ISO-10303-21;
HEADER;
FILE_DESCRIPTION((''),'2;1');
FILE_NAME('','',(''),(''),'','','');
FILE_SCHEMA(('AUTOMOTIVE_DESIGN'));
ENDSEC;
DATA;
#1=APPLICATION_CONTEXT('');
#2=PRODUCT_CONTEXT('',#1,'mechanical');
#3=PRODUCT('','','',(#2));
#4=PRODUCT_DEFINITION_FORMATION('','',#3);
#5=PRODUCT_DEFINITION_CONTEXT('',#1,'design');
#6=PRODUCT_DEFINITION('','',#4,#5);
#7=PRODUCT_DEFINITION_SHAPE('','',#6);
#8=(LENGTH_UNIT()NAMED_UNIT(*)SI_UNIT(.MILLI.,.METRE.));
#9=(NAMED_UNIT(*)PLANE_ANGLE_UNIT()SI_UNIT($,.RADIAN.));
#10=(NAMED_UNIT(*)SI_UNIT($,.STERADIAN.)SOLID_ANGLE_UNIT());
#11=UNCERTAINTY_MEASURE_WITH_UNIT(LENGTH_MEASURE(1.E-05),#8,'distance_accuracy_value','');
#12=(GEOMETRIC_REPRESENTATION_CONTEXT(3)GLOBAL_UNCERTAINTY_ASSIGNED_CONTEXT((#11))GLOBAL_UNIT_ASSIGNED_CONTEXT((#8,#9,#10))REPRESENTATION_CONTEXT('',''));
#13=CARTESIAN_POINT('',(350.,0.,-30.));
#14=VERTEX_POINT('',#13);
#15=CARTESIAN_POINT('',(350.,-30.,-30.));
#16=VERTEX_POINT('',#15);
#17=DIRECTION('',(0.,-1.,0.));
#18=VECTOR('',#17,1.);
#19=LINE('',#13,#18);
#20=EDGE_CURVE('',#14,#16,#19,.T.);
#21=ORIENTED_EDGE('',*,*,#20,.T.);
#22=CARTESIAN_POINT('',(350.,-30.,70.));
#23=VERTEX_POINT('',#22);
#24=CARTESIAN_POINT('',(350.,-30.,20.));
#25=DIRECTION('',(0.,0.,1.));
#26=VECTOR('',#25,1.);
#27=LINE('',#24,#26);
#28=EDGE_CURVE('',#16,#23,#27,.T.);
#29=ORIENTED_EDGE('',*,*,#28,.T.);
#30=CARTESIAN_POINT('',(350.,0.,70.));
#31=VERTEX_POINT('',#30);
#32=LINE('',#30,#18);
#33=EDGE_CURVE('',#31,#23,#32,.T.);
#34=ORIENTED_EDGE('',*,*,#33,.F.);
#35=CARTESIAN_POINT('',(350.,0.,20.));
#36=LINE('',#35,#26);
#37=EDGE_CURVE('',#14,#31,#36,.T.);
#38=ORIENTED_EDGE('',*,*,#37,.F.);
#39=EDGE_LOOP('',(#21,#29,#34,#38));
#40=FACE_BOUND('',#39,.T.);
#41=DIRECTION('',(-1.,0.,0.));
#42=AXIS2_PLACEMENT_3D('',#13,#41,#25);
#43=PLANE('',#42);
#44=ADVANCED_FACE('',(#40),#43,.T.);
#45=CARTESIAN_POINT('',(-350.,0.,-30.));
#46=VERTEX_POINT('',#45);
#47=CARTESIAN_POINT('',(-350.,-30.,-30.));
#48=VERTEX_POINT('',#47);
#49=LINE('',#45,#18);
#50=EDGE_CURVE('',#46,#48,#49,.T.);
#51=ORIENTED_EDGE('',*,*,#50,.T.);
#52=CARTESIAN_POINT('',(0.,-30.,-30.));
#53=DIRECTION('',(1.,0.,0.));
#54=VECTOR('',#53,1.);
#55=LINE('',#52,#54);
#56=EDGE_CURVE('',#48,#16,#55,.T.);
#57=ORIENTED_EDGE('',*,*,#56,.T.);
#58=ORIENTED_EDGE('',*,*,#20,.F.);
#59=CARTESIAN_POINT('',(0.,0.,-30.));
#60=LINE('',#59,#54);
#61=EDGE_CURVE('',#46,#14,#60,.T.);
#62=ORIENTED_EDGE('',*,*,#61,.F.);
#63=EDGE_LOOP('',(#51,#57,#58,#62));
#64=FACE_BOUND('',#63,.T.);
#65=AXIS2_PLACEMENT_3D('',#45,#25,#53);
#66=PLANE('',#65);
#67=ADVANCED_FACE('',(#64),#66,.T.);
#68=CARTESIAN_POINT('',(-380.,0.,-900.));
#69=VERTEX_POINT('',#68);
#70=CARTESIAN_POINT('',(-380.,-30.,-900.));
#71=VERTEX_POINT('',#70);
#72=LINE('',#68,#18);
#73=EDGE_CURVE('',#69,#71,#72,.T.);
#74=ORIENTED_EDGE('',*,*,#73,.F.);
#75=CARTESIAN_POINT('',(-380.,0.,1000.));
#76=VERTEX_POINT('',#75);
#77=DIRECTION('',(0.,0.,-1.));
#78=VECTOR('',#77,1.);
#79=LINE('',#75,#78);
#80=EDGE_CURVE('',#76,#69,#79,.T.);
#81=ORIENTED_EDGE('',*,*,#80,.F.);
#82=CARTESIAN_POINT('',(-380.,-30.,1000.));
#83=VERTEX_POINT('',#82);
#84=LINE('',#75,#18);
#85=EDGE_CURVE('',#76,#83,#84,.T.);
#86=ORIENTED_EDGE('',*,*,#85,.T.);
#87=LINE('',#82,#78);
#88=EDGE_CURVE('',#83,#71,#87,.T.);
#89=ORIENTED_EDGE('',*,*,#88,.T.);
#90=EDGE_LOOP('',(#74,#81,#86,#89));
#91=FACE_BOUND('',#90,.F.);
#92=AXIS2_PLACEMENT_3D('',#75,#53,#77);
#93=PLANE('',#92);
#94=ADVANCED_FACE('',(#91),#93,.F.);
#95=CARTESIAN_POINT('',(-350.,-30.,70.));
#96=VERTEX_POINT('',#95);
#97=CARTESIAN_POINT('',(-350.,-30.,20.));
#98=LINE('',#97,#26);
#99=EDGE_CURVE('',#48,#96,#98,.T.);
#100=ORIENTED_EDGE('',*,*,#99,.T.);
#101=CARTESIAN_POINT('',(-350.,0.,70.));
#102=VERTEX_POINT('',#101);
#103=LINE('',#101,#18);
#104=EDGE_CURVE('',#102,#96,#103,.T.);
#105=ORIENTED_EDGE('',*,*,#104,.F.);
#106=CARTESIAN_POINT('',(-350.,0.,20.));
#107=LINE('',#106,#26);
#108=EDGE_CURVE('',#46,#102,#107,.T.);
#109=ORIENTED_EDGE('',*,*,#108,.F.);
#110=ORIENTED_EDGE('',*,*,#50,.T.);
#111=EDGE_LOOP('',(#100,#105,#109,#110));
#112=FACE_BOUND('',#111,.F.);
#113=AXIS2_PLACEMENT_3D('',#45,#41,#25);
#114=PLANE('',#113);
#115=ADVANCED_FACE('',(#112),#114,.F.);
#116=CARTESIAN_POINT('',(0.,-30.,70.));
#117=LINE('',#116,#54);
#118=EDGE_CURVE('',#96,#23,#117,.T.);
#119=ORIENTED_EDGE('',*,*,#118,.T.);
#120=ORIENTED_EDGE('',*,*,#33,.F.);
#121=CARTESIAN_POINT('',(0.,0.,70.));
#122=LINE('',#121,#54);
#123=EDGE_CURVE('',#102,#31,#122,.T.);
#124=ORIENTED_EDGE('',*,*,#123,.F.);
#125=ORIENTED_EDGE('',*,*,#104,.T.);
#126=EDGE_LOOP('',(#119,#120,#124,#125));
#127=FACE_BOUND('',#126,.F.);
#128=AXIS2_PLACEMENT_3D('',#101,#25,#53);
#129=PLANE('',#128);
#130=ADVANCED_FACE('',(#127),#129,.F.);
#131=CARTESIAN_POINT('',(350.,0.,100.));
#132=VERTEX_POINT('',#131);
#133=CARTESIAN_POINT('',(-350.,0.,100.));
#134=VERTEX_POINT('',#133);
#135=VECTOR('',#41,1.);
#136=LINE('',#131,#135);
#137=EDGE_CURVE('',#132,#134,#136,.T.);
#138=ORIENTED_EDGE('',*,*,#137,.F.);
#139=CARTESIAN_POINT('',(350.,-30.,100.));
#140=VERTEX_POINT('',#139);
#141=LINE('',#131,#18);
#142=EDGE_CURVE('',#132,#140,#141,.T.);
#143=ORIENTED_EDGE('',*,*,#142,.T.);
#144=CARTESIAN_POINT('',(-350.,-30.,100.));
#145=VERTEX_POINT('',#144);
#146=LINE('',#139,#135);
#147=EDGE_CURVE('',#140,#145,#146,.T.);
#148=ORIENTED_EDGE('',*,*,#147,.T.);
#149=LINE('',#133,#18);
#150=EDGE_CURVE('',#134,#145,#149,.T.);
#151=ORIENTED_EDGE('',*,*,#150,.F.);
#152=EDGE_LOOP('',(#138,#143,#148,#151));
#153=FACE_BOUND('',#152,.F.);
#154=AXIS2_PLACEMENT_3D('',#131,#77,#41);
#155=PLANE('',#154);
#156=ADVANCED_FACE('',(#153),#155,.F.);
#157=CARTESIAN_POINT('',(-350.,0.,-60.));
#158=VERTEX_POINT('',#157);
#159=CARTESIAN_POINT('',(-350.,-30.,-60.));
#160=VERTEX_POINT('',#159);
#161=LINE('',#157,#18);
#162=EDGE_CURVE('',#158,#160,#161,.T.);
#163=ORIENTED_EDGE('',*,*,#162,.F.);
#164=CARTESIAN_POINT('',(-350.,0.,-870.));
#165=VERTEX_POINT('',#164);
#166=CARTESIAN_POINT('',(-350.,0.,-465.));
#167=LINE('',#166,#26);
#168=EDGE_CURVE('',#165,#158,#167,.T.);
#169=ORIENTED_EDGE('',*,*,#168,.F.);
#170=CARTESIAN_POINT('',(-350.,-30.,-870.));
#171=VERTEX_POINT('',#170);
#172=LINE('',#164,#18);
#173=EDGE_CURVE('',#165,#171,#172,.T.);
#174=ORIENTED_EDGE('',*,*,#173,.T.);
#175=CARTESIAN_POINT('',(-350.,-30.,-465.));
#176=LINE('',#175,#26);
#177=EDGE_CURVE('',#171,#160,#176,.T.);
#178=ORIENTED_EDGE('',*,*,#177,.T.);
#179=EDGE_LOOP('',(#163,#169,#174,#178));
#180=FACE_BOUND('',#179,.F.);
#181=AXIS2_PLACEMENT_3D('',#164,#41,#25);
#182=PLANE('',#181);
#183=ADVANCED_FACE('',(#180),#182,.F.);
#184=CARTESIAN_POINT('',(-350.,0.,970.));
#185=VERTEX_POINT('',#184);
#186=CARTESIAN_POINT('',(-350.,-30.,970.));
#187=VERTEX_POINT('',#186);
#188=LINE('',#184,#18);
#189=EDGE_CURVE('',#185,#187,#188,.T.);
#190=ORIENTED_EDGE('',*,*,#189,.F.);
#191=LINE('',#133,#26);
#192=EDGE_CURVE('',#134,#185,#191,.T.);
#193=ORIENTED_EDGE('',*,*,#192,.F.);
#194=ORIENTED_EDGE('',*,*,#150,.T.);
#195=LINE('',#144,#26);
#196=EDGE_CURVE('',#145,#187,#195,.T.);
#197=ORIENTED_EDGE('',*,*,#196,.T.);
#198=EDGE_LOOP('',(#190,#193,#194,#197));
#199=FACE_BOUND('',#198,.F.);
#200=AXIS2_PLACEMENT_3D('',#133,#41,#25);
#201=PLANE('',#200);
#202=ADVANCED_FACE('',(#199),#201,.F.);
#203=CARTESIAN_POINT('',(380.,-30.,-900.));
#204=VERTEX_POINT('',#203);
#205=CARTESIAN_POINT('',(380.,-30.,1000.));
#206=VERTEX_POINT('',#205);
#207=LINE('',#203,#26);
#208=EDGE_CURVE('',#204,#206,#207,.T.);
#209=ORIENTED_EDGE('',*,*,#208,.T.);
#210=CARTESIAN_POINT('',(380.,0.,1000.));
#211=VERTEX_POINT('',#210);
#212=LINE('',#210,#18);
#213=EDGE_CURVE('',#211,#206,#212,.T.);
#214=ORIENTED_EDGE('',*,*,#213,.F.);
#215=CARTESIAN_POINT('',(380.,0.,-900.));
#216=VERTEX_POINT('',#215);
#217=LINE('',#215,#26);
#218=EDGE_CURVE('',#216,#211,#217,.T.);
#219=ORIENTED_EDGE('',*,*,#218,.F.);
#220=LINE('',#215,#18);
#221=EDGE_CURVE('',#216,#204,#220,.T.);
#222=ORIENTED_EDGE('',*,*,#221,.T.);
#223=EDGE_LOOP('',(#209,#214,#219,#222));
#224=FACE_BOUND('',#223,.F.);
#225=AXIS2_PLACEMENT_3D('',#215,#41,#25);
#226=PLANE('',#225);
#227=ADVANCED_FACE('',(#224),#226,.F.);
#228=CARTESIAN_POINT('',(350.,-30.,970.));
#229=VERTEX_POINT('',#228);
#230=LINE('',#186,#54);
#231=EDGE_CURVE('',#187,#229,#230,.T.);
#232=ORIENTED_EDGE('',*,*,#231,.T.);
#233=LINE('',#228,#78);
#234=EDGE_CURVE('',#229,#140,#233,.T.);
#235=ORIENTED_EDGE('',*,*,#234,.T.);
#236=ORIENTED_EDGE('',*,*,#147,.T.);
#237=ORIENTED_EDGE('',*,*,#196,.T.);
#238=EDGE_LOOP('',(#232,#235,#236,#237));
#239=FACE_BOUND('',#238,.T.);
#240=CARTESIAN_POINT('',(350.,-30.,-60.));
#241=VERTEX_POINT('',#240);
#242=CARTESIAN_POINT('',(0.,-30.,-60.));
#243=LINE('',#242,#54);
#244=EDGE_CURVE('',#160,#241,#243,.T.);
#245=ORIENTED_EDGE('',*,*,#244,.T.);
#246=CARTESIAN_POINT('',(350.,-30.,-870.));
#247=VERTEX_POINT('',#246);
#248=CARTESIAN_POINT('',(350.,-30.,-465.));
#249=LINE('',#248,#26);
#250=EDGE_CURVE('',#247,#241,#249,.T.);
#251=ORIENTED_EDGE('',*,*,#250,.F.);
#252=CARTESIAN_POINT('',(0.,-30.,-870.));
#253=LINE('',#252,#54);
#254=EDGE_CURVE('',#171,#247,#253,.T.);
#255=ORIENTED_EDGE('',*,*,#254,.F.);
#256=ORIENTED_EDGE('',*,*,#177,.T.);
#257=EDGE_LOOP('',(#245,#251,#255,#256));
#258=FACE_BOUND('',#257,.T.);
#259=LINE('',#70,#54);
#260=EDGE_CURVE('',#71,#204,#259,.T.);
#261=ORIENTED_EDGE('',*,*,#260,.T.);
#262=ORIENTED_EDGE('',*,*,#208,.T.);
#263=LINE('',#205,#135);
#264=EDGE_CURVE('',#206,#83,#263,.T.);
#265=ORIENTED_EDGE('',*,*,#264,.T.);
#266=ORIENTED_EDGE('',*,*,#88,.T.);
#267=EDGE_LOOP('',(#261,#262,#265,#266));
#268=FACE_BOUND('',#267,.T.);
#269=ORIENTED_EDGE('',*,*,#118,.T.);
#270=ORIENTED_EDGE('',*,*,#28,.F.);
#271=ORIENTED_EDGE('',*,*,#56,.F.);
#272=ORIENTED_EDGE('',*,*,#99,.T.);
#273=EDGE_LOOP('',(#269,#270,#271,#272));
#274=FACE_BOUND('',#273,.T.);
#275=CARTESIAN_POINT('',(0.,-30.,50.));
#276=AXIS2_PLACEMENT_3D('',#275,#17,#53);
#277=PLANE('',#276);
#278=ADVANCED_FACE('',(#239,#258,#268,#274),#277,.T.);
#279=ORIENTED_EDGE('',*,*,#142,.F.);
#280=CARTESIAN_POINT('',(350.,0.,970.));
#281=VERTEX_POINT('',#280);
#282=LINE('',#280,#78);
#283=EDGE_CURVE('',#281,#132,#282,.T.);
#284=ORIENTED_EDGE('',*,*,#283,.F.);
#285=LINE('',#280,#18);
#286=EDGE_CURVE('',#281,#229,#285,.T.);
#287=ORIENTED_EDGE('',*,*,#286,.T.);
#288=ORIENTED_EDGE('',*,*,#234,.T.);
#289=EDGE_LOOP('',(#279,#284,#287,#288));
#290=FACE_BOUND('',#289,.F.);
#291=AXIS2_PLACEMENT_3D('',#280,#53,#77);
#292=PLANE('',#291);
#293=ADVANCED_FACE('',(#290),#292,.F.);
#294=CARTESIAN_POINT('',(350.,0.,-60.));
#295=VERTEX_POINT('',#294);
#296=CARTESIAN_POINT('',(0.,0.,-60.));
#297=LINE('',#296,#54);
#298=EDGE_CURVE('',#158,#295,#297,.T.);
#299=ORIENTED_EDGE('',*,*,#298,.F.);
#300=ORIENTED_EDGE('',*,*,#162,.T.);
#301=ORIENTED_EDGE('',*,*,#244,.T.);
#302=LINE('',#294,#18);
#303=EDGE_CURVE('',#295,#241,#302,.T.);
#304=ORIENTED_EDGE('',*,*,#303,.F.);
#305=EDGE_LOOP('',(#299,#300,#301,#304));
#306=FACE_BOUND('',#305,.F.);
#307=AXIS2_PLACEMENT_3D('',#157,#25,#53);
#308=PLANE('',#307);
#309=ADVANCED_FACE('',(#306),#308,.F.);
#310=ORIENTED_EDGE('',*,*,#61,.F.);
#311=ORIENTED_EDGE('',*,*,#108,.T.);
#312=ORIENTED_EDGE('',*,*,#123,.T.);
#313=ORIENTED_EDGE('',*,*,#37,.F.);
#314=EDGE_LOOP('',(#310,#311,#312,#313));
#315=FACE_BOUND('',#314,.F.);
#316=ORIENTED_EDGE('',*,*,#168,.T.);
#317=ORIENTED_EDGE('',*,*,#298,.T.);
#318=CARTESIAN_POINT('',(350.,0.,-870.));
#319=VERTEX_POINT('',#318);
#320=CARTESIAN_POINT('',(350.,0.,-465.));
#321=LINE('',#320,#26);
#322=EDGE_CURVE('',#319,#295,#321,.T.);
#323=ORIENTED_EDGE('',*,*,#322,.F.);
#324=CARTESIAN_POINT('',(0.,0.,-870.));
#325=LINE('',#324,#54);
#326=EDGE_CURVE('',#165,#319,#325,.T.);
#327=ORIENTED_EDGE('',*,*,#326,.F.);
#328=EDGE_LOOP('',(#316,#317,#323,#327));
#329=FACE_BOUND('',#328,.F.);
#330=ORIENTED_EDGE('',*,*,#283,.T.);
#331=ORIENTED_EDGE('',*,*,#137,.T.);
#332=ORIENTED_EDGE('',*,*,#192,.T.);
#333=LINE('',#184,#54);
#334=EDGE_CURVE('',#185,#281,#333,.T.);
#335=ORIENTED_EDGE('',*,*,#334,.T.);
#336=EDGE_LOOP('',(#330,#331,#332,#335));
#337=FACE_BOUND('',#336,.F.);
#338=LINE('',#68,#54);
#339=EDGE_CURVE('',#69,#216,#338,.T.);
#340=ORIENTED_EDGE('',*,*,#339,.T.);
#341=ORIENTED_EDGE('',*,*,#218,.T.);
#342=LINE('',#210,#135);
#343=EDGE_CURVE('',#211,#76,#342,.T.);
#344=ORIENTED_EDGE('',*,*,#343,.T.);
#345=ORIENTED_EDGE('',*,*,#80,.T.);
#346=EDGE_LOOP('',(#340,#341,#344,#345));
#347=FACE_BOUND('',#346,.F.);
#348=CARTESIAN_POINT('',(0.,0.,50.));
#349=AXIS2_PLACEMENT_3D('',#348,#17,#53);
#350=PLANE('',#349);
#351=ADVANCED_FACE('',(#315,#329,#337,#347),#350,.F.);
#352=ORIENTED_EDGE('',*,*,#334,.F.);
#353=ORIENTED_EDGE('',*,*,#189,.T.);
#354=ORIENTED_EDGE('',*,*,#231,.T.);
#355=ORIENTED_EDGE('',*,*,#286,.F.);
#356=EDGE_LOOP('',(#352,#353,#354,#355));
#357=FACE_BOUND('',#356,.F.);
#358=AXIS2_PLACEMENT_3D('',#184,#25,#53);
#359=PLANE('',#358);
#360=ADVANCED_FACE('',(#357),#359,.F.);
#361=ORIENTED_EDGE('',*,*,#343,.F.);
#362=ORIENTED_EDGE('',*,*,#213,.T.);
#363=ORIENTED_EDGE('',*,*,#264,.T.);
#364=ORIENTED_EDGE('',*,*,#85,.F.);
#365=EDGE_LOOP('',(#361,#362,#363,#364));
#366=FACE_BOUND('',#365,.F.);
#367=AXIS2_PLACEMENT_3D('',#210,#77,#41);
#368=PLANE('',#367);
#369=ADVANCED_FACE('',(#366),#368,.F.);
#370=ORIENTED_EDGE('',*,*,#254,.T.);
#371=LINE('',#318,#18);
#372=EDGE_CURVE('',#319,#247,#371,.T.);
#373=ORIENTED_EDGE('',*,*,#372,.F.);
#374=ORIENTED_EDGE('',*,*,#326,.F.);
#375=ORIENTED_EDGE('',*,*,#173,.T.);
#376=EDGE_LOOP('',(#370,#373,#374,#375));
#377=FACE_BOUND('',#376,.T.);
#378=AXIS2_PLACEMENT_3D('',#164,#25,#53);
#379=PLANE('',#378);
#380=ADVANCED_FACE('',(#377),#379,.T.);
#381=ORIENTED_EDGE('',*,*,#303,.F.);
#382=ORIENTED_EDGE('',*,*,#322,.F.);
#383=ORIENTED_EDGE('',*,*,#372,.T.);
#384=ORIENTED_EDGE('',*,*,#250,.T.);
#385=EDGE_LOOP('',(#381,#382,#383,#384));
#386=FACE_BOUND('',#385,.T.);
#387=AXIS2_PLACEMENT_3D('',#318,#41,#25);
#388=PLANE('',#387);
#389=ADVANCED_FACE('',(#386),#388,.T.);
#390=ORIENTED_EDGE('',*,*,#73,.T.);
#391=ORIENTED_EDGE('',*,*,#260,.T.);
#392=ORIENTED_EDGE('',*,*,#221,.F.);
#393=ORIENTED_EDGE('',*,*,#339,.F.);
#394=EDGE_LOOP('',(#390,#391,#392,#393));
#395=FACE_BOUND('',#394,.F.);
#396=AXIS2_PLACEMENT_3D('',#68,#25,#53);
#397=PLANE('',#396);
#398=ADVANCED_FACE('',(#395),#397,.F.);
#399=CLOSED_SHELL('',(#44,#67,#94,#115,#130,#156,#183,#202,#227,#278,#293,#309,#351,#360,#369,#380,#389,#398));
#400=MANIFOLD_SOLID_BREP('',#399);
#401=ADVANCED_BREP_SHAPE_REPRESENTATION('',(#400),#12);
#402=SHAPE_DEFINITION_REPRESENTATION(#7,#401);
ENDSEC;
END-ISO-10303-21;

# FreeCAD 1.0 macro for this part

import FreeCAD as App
import Part
import Sketcher

V = App.Vector


def add_polygon(sketch, points):
    """Adds a closed chain of lines whose ends are joined by coincident constraints."""
    first, n = sketch.GeometryCount, len(points)
    for a, b in zip(points, points[1:] + points[:1]):
        sketch.addGeometry(Part.LineSegment(App.Vector(*a, 0), App.Vector(*b, 0)), False)
    for i in range(n):
        sketch.addConstraint(Sketcher.Constraint("Coincident", first + i, 2, first + (i + 1) % n, 1))

doc = App.newDocument("Part")
params = doc.addObject("Spreadsheet::Sheet", "Params")
for row, (alias, value) in enumerate([
    ("sketch1_width", "760 mm"),
    ("sketch1_width2", "700 mm"),
    ("sketch1_height", "1900 mm"),
    ("sketch1_height2", "810 mm"),
    ("sketch1_height3", "100 mm"),
    ("pad1_length", "30 mm"),
], start=1):
    params.set(f"A{row}", alias)
    params.set(f"B{row}", "=" + value)
    params.setAlias(f"B{row}", alias)

body = doc.addObject("PartDesign::Body", "Body")

# Sketch on XZ plane
sketch1 = doc.addObject("Sketcher::SketchObject", "Sketch")
body.addObject(sketch1)
sketch1.AttachmentSupport = (doc.XZ_Plane, [""])
sketch1.MapMode = "FlatFace"
add_polygon(sketch1, [(-380, -900), (380, -900), (380, 1000), (-380, 1000)])  # lines 0-3
add_polygon(sketch1, [(350, -870), (-350, -870), (-350, -60), (350, -60)])  # lines 4-7
add_polygon(sketch1, [(350, -30), (-350, -30), (-350, 70), (350, 70)])  # lines 8-11
add_polygon(sketch1, [(-350, 970), (350, 970), (350, 100), (-350, 100)])  # lines 12-15
sketch1.addConstraint(Sketcher.Constraint("Horizontal", 0))
sketch1.addConstraint(Sketcher.Constraint("Vertical", 1))
sketch1.addConstraint(Sketcher.Constraint("Horizontal", 2))
sketch1.addConstraint(Sketcher.Constraint("Vertical", 3))
sketch1.addConstraint(Sketcher.Constraint("Horizontal", 4))
sketch1.addConstraint(Sketcher.Constraint("Vertical", 5))
sketch1.addConstraint(Sketcher.Constraint("Horizontal", 6))
sketch1.addConstraint(Sketcher.Constraint("Vertical", 7))
sketch1.addConstraint(Sketcher.Constraint("Horizontal", 8))
sketch1.addConstraint(Sketcher.Constraint("Vertical", 9))
sketch1.addConstraint(Sketcher.Constraint("Horizontal", 10))
sketch1.addConstraint(Sketcher.Constraint("Vertical", 11))
sketch1.addConstraint(Sketcher.Constraint("Horizontal", 12))
sketch1.addConstraint(Sketcher.Constraint("Vertical", 13))
sketch1.addConstraint(Sketcher.Constraint("Horizontal", 14))
sketch1.addConstraint(Sketcher.Constraint("Vertical", 15))
sketch1.addConstraint(Sketcher.Constraint("Vertical", 5, 2, 8, 2))
sketch1.addConstraint(Sketcher.Constraint("Vertical", 7, 2, 10, 2))
sketch1.addConstraint(Sketcher.Constraint("Vertical", 11, 2, 12, 2))
sketch1.addConstraint(Sketcher.Constraint("Vertical", 9, 2, 14, 2))
sketch1.addConstraint(Sketcher.Constraint("DistanceX", 0, 1, 0, 2, 760.0))
sketch1.addConstraint(Sketcher.Constraint("DistanceX", 4, 2, 4, 1, 700.0))
sketch1.addConstraint(Sketcher.Constraint("DistanceY", 1, 1, 1, 2, 1900.0))
sketch1.addConstraint(Sketcher.Constraint("DistanceY", 5, 1, 5, 2, 810.0))
sketch1.addConstraint(Sketcher.Constraint("DistanceY", 9, 1, 9, 2, 100.0))
sketch1.addConstraint(Sketcher.Constraint("DistanceY", 13, 2, 13, 1, 870.0))
sketch1.addConstraint(Sketcher.Constraint("DistanceX", -1, 1, 0, 2, 380.0))
sketch1.addConstraint(Sketcher.Constraint("DistanceY", 0, 2, -1, 1, 900.0))
sketch1.addConstraint(Sketcher.Constraint("DistanceX", 4, 2, -1, 1, 350.0))
sketch1.addConstraint(Sketcher.Constraint("DistanceY", 4, 2, -1, 1, 870.0))
sketch1.addConstraint(Sketcher.Constraint("DistanceY", 8, 2, -1, 1, 30.0))
sketch1.addConstraint(Sketcher.Constraint("DistanceY", -1, 1, 12, 2, 970.0))
sketch1.setExpression("Constraints[36]", "Params.sketch1_width")
sketch1.setExpression("Constraints[37]", "Params.sketch1_width2")
sketch1.setExpression("Constraints[38]", "Params.sketch1_height")
sketch1.setExpression("Constraints[39]", "Params.sketch1_height2")
sketch1.setExpression("Constraints[40]", "Params.sketch1_height3")
pad1 = doc.addObject("PartDesign::Pad", "Pad")
body.addObject(pad1)
pad1.Profile = sketch1
pad1.setExpression("Length", "Params.pad1_length")

doc.recompute()
